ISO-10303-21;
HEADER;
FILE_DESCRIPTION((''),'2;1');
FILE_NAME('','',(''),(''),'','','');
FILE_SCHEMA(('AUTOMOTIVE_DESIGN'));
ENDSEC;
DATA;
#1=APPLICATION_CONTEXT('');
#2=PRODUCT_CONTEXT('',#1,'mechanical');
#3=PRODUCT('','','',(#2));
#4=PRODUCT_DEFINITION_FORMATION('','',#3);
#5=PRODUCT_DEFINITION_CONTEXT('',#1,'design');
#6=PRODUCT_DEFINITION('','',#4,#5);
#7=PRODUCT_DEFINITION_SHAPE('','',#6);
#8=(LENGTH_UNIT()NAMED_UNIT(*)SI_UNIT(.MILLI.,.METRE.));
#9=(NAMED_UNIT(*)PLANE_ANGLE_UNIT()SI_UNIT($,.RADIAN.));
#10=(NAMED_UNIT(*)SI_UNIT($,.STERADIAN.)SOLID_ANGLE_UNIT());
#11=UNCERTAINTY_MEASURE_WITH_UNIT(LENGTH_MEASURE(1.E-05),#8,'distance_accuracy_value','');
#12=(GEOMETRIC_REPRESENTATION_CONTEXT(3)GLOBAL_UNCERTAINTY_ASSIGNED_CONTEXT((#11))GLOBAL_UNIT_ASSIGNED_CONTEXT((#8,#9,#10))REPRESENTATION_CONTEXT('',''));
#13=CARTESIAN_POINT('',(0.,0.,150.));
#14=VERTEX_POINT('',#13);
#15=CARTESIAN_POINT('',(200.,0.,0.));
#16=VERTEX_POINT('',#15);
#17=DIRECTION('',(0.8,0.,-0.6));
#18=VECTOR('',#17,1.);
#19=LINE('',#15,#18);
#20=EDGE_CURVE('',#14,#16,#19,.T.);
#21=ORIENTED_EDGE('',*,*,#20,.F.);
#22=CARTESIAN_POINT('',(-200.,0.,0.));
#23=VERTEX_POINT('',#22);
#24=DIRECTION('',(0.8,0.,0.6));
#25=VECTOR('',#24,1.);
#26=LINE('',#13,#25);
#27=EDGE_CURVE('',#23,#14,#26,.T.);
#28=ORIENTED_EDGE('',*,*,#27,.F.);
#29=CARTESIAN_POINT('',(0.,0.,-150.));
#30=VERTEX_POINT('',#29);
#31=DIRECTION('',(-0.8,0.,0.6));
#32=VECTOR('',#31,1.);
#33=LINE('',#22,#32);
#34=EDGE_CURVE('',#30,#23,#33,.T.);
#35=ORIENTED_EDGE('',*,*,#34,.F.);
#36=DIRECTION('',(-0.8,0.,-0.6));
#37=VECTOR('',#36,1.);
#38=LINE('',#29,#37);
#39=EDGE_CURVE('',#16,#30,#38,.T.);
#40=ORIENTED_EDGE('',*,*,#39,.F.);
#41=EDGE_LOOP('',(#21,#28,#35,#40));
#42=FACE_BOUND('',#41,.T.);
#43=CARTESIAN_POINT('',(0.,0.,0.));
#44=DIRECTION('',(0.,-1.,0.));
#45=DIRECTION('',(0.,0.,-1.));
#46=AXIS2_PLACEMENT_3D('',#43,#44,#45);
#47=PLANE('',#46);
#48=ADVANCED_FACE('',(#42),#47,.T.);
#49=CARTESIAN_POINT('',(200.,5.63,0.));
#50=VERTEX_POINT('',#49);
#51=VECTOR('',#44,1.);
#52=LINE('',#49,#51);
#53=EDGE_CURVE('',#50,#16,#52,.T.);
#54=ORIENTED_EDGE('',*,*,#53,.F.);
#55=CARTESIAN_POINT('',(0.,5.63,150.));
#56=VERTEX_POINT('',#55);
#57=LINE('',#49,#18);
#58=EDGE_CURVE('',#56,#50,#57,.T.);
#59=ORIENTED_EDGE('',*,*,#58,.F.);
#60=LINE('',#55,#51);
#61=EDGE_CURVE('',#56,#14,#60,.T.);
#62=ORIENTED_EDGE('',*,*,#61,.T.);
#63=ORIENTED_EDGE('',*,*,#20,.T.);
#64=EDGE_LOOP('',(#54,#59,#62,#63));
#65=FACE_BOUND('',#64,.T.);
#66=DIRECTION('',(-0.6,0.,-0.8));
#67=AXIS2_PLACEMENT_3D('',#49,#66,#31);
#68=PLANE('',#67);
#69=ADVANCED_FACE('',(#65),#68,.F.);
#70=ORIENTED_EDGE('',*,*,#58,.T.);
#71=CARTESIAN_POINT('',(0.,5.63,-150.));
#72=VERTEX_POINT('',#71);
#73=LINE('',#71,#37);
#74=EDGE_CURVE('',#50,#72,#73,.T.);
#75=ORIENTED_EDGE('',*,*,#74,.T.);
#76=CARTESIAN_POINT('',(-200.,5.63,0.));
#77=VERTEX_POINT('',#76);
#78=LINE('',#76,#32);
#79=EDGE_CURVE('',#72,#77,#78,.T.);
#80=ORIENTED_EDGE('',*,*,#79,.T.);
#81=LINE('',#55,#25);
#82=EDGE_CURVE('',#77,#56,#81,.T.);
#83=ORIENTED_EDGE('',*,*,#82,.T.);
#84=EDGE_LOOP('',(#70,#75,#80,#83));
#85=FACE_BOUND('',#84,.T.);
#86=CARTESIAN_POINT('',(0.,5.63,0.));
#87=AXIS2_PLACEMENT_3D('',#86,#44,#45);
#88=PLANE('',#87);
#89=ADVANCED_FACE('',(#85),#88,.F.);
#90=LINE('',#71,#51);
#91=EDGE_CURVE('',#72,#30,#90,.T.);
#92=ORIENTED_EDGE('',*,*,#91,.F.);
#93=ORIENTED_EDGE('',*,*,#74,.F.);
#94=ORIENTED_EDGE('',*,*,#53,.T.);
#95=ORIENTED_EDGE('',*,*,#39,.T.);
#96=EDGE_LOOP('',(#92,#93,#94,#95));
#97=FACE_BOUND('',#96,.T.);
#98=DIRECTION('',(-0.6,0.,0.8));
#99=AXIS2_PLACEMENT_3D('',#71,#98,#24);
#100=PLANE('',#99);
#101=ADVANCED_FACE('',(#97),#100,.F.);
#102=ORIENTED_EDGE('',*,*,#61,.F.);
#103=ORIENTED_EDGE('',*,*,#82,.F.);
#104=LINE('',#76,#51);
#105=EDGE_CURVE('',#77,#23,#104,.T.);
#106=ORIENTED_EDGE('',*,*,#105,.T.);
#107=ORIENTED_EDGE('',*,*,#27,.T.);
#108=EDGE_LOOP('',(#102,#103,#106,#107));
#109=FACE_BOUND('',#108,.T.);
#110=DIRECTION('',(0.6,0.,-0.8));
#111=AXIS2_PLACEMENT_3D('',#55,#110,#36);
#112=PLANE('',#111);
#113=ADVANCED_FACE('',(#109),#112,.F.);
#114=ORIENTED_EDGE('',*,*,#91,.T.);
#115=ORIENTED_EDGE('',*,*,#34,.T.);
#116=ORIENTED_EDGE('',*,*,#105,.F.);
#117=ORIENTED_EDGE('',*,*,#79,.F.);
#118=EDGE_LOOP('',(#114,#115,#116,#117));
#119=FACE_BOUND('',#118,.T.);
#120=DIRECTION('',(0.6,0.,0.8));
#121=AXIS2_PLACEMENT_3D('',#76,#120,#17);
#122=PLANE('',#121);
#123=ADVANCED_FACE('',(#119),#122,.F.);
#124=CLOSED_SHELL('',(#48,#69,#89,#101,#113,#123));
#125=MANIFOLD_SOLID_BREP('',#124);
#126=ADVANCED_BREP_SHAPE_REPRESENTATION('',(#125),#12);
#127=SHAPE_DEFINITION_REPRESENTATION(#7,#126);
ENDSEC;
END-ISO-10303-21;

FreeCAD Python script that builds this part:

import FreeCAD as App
import Part
import Sketcher
Q = App.Units.Quantity

doc = App.newDocument("Part")
body = doc.addObject("PartDesign::Body", "Body")

sketch1 = doc.addObject("Sketcher::SketchObject", "Sketch")
body.addObject(sketch1)
sketch1.AttachmentSupport = (doc.XZ_Plane, [""])
sketch1.MapMode = "FlatFace"
sketch1.addGeometry([
    Part.LineSegment(App.Vector(200, 0, 0), App.Vector(0, -150, 0)),
    Part.LineSegment(App.Vector(0, -150, 0), App.Vector(-200, 0, 0)),
    Part.LineSegment(App.Vector(-200, 0, 0), App.Vector(0, 150, 0)),
    Part.LineSegment(App.Vector(0, 150, 0), App.Vector(200, 0, 0)),
], False)
sketch1.addConstraint([
    Sketcher.Constraint("Coincident", 0, 2, 1, 1),
    Sketcher.Constraint("Coincident", 1, 2, 2, 1),
    Sketcher.Constraint("Coincident", 2, 2, 3, 1),
    Sketcher.Constraint("Coincident", 3, 2, 0, 1),
    Sketcher.Constraint("Symmetric", 0, 2, 2, 2, -1, 1),
    Sketcher.Constraint("Symmetric", 1, 2, 3, 2, -1, 1),
    Sketcher.Constraint("PointOnObject", 0, 2, -2),
    Sketcher.Constraint("PointOnObject", 1, 2, -1),
    Sketcher.Constraint("Distance", 0, Q("250 mm")),
    Sketcher.Constraint("DistanceY", 0, 2, -1, 1, Q("150 mm")),
])
pad1 = doc.addObject("PartDesign::Pad", "Pad")
body.addObject(pad1)
pad1.Profile = sketch1
pad1.Length = 5.63
pad1.Reversed = True

doc.recompute()
